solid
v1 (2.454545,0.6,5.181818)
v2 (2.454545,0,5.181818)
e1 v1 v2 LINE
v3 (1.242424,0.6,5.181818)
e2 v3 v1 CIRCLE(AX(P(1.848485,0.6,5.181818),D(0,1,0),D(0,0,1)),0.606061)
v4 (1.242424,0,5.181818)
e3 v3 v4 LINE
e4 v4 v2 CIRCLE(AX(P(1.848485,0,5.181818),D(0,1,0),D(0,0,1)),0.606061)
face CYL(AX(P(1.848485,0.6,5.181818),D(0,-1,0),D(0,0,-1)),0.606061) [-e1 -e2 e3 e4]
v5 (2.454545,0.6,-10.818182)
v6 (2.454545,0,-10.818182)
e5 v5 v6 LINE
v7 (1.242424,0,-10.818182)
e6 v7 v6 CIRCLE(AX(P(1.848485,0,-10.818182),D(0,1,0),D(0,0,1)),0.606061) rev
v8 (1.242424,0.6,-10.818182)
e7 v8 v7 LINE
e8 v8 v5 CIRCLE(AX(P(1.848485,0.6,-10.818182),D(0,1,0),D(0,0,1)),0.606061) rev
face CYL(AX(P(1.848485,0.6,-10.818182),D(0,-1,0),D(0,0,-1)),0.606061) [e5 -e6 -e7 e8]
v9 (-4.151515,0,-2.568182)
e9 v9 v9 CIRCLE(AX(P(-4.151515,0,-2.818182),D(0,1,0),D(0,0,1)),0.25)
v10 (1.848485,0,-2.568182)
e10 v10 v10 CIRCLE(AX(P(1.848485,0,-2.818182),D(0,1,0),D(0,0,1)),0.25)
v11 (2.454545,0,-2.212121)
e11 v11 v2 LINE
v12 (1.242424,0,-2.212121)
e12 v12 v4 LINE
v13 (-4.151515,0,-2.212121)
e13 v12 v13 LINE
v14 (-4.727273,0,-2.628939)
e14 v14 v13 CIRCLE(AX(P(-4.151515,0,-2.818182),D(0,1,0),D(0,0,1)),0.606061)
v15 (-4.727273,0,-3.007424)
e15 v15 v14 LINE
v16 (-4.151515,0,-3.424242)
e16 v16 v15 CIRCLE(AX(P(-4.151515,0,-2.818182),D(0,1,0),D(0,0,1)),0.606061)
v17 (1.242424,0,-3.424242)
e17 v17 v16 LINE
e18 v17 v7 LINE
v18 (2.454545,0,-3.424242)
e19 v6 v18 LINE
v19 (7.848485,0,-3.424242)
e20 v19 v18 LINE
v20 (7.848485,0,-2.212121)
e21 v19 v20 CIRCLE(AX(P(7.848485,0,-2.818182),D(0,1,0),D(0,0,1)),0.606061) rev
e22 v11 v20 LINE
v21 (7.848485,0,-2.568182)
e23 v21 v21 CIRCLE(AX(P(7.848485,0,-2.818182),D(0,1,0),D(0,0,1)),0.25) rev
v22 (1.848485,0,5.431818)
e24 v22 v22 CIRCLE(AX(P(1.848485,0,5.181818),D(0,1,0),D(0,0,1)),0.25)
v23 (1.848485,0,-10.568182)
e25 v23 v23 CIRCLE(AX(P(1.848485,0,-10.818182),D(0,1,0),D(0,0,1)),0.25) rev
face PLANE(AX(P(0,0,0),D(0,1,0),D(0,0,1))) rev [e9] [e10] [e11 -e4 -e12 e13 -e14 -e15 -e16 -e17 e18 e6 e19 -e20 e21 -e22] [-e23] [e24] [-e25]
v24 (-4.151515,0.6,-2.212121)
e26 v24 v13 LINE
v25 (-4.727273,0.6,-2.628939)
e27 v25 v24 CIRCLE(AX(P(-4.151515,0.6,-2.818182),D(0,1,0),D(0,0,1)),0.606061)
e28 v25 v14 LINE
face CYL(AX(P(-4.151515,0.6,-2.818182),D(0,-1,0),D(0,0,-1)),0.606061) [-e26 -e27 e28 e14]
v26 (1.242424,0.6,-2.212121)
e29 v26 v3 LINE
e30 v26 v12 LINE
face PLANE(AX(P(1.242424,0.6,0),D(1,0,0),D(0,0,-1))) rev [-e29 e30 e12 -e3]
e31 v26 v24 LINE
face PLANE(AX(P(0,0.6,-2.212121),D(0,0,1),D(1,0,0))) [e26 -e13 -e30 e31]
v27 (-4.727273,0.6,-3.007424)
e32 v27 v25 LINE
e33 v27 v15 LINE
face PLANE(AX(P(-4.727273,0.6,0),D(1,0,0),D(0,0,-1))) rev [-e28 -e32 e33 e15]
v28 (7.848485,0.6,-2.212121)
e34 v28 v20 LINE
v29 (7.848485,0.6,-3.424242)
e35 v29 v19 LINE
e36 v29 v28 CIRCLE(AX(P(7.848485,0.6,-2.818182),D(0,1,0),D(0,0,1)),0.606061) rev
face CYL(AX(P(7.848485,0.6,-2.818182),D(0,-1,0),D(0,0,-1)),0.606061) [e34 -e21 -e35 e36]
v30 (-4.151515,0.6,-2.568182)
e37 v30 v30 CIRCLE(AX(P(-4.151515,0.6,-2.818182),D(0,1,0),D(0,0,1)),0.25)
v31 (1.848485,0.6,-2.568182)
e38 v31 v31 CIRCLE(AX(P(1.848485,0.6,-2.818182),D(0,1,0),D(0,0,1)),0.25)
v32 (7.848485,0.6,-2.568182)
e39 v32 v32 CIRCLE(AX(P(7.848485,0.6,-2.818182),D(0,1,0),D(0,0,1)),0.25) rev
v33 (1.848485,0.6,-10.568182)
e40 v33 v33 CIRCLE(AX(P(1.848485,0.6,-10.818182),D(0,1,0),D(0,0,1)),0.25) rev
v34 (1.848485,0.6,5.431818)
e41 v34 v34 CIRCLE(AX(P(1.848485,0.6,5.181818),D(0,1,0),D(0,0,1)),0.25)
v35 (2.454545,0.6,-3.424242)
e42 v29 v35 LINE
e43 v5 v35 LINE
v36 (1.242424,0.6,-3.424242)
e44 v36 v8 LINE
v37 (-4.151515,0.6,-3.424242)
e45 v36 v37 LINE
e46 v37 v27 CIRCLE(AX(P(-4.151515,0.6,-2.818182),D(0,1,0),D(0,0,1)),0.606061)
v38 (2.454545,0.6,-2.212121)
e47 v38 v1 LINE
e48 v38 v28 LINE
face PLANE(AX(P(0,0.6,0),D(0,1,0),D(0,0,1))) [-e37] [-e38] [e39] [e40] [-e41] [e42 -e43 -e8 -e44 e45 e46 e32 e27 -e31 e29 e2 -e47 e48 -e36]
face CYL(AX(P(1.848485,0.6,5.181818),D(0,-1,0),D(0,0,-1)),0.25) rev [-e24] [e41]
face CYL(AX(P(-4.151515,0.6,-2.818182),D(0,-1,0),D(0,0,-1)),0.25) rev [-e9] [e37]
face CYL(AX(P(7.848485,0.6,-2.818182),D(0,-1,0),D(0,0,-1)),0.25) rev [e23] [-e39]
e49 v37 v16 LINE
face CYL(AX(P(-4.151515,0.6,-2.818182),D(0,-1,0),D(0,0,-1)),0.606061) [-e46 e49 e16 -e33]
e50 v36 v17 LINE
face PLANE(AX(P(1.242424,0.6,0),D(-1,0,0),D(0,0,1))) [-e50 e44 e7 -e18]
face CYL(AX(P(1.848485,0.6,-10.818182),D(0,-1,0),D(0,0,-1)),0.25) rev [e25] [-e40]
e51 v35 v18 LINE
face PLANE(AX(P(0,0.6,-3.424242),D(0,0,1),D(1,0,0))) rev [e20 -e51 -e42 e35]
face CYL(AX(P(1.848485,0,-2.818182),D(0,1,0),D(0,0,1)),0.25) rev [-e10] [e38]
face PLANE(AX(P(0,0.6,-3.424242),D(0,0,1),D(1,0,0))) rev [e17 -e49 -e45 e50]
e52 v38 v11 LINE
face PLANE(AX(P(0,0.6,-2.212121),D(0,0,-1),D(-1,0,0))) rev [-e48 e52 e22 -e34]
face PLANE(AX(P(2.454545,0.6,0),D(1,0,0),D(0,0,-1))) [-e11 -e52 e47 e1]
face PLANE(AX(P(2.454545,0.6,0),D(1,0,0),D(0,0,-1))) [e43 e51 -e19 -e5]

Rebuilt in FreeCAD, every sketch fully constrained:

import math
import FreeCAD as App
import Part
import Sketcher

doc = App.newDocument("Part")
params = doc.addObject("Spreadsheet::Sheet", "Params")
for row, (alias, value) in enumerate([
    ("sketch1_diameter", "0.5 mm"),
    ("pad1_length", "0.6 mm"),
    ("sketch2_diameter", "0.5 mm"),
], start=1):
    params.set(f"A{row}", alias)
    params.set(f"B{row}", "=" + value)
    params.setAlias(f"B{row}", alias)

body = doc.addObject("PartDesign::Body", "Body")

# Sketch on XZ plane
sketch1 = doc.addObject("Sketcher::SketchObject", "Sketch")
body.addObject(sketch1)
sketch1.AttachmentSupport = (doc.XZ_Plane, [""])
sketch1.MapMode = "FlatFace"
sketch1.addGeometry(Part.LineSegment(App.Vector(2.45, -3.42, 0), App.Vector(2.45, -10.82, 0)), False)
sketch1.addGeometry(Part.ArcOfCircle(Part.Circle(App.Vector(1.85, -10.82, 0), App.Vector(0, 0, 1), 0.61), math.radians(-180), math.radians(0)), False)
sketch1.addGeometry(Part.LineSegment(App.Vector(1.24, -10.82, 0), App.Vector(1.24, -3.42, 0)), False)
sketch1.addGeometry(Part.LineSegment(App.Vector(1.24, -3.42, 0), App.Vector(-4.15, -3.42, 0)), False)
sketch1.addGeometry(Part.ArcOfCircle(Part.Circle(App.Vector(-4.15, -2.82, 0), App.Vector(0, 0, 1), 0.61), math.radians(-162), math.radians(-90)), False)
sketch1.addGeometry(Part.LineSegment(App.Vector(-4.73, -3.01, 0), App.Vector(-4.73, -2.63, 0)), False)
sketch1.addGeometry(Part.ArcOfCircle(Part.Circle(App.Vector(-4.15, -2.82, 0), App.Vector(0, 0, 1), 0.61), math.radians(90), math.radians(162)), False)
sketch1.addGeometry(Part.LineSegment(App.Vector(-4.15, -2.21, 0), App.Vector(1.24, -2.21, 0)), False)
sketch1.addGeometry(Part.LineSegment(App.Vector(1.24, -2.21, 0), App.Vector(1.24, 5.18, 0)), False)
sketch1.addGeometry(Part.ArcOfCircle(Part.Circle(App.Vector(1.85, 5.18, 0), App.Vector(0, 0, 1), 0.61), math.radians(0), math.radians(180)), False)
sketch1.addGeometry(Part.LineSegment(App.Vector(2.45, 5.18, 0), App.Vector(2.45, -2.21, 0)), False)
sketch1.addGeometry(Part.LineSegment(App.Vector(2.45, -2.21, 0), App.Vector(7.85, -2.21, 0)), False)
sketch1.addGeometry(Part.ArcOfCircle(Part.Circle(App.Vector(7.85, -2.82, 0), App.Vector(0, 0, 1), 0.61), math.radians(-90), math.radians(90)), False)
sketch1.addGeometry(Part.LineSegment(App.Vector(7.85, -3.42, 0), App.Vector(2.45, -3.42, 0)), False)
sketch1.addGeometry(Part.Circle(App.Vector(1.85, 5.18, 0), App.Vector(0, 0, 1), 0.25), False)
sketch1.addGeometry(Part.Circle(App.Vector(-4.15, -2.82, 0), App.Vector(0, 0, 1), 0.25), False)
sketch1.addGeometry(Part.Circle(App.Vector(7.85, -2.82, 0), App.Vector(0, 0, 1), 0.25), False)
sketch1.addGeometry(Part.Circle(App.Vector(1.85, -10.82, 0), App.Vector(0, 0, 1), 0.25), False)
sketch1.addConstraint(Sketcher.Constraint("Tangent", 0, 2, 1, 2))
sketch1.addConstraint(Sketcher.Constraint("Tangent", 1, 1, 2, 1))
sketch1.addConstraint(Sketcher.Constraint("Coincident", 2, 2, 3, 1))
sketch1.addConstraint(Sketcher.Constraint("Tangent", 3, 2, 4, 2))
sketch1.addConstraint(Sketcher.Constraint("Coincident", 4, 1, 5, 1))
sketch1.addConstraint(Sketcher.Constraint("Coincident", 5, 2, 6, 2))
sketch1.addConstraint(Sketcher.Constraint("Tangent", 6, 1, 7, 1))
sketch1.addConstraint(Sketcher.Constraint("Coincident", 7, 2, 8, 1))
sketch1.addConstraint(Sketcher.Constraint("Tangent", 8, 2, 9, 2))
sketch1.addConstraint(Sketcher.Constraint("Tangent", 9, 1, 10, 1))
sketch1.addConstraint(Sketcher.Constraint("Coincident", 10, 2, 11, 1))
sketch1.addConstraint(Sketcher.Constraint("Tangent", 11, 2, 12, 2))
sketch1.addConstraint(Sketcher.Constraint("Tangent", 12, 1, 13, 1))
sketch1.addConstraint(Sketcher.Constraint("Coincident", 13, 2, 0, 1))
sketch1.addConstraint(Sketcher.Constraint("Vertical", 0))
sketch1.addConstraint(Sketcher.Constraint("Vertical", 2))
sketch1.addConstraint(Sketcher.Constraint("Horizontal", 3))
sketch1.addConstraint(Sketcher.Constraint("Vertical", 5))
sketch1.addConstraint(Sketcher.Constraint("Horizontal", 7))
sketch1.addConstraint(Sketcher.Constraint("Vertical", 8))
sketch1.addConstraint(Sketcher.Constraint("Vertical", 10))
sketch1.addConstraint(Sketcher.Constraint("Horizontal", 11))
sketch1.addConstraint(Sketcher.Constraint("Horizontal", 13))
sketch1.addConstraint(Sketcher.Constraint("Coincident", 6, 3, 4, 3))
sketch1.addConstraint(Sketcher.Constraint("Coincident", 14, 3, 9, 3))
sketch1.addConstraint(Sketcher.Constraint("Coincident", 15, 3, 4, 3))
sketch1.addConstraint(Sketcher.Constraint("Coincident", 16, 3, 12, 3))
sketch1.addConstraint(Sketcher.Constraint("Coincident", 17, 3, 1, 3))
sketch1.addConstraint(Sketcher.Constraint("Equal", 1, 4))
sketch1.addConstraint(Sketcher.Constraint("Equal", 4, 6))
sketch1.addConstraint(Sketcher.Constraint("Equal", 6, 9))
sketch1.addConstraint(Sketcher.Constraint("Equal", 9, 12))
sketch1.addConstraint(Sketcher.Constraint("Equal", 14, 15))
sketch1.addConstraint(Sketcher.Constraint("Equal", 15, 16))
sketch1.addConstraint(Sketcher.Constraint("Equal", 16, 17))
sketch1.addConstraint(Sketcher.Constraint("Horizontal", 6, 3, 12, 3))
sketch1.addConstraint(Sketcher.Constraint("Vertical", 1, 3, 9, 3))
sketch1.addConstraint(Sketcher.Constraint("Equal", 7, 11))
sketch1.addConstraint(Sketcher.Constraint("Equal", 2, 8))
sketch1.addConstraint(Sketcher.Constraint("Diameter", 14, 0.5))
sketch1.addConstraint(Sketcher.Constraint("DistanceX", 4, 3, 1, 3, 6.0))
sketch1.addConstraint(Sketcher.Constraint("DistanceY", 1, 3, 4, 3, 8.0))
sketch1.addConstraint(Sketcher.Constraint("Radius", 1, 0.606061))
sketch1.addConstraint(Sketcher.Constraint("DistanceY", 5, 1, 5, 2, 0.378485))
sketch1.addConstraint(Sketcher.Constraint("DistanceY", 1, 3, -1, 1, 10.818182))
sketch1.addConstraint(Sketcher.Constraint("DistanceX", -1, 1, 1, 3, 1.848485))
sketch1.setExpression("Constraints[39]", "Params.sketch1_diameter")
pad1 = doc.addObject("PartDesign::Pad", "Pad")
body.addObject(pad1)
pad1.Profile = sketch1
pad1.setExpression("Length", "Params.pad1_length")
pad1.Reversed = True

# Sketch on XZ plane
sketch2 = doc.addObject("Sketcher::SketchObject", "Sketch001")
body.addObject(sketch2)
sketch2.AttachmentSupport = (doc.XZ_Plane, [""])
sketch2.MapMode = "FlatFace"
sketch2.AttachmentOffset = App.Placement(App.Vector(0, 0, -0.6), App.Rotation())
sketch2.addGeometry(Part.Circle(App.Vector(1.85, -2.82, 0), App.Vector(0, 0, 1), 0.25), False)
sketch2.addConstraint(Sketcher.Constraint("Diameter", 0, 0.5))
sketch2.addConstraint(Sketcher.Constraint("DistanceY", 0, 3, -1, 1, 2.818182))
sketch2.addConstraint(Sketcher.Constraint("DistanceX", -1, 1, 0, 3, 1.848485))
sketch2.setExpression("Constraints[0]", "Params.sketch2_diameter")
pocket1 = doc.addObject("PartDesign::Pocket", "Pocket")
body.addObject(pocket1)
pocket1.Profile = sketch2
pocket1.Type = "ThroughAll"
pocket1.Reversed = True

doc.recompute()
